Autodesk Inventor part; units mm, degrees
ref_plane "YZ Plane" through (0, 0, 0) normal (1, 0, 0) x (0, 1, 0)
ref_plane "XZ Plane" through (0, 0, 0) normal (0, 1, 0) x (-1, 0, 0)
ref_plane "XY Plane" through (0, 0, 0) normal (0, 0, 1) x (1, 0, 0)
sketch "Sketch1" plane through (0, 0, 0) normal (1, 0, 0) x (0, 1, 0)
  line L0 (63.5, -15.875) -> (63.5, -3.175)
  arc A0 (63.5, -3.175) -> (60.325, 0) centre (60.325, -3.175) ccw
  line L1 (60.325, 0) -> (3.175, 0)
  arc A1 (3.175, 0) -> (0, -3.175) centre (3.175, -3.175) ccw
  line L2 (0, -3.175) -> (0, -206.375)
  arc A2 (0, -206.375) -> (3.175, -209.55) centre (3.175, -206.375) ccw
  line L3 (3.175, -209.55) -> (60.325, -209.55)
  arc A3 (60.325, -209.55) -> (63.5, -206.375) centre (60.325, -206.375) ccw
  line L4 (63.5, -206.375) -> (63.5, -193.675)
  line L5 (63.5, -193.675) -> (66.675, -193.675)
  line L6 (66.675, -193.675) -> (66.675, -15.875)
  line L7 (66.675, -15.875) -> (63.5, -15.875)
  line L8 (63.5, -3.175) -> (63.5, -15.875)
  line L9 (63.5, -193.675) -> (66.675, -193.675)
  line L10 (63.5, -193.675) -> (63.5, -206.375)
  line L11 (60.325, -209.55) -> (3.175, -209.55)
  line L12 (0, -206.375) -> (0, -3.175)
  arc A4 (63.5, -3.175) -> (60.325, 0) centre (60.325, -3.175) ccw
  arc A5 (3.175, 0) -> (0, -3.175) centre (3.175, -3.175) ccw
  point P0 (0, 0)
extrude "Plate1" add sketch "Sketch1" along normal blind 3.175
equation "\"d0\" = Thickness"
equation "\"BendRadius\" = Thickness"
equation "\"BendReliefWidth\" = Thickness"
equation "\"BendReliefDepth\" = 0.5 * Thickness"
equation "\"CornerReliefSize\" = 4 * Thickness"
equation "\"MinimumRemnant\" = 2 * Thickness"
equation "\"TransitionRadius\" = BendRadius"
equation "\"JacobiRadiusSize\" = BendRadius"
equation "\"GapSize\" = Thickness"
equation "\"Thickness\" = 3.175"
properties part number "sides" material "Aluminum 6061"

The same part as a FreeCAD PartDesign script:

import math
import FreeCAD as App
import Part
import Sketcher
Q = App.Units.Quantity

doc = App.newDocument("Part")
params = doc.addObject("Spreadsheet::Sheet", "Params")
for row, (alias, value) in enumerate([
    ("sketch1_height", "8 in"),
    ("sketch1_height2", "7 in"),
    ("sketch1_radius", "0.125 in"),
    ("sketch1_width", "2.25 in"),
    ("pad1_length", "0.125 in"),
], start=1):
    params.set(f"A{row}", alias)
    params.set(f"B{row}", "=" + value)
    params.setAlias(f"B{row}", alias)

body = doc.addObject("PartDesign::Body", "Body")

# Sketch on YZ plane
sketch1 = body.newObject("Sketcher::SketchObject", "Sketch")
sketch1.AttachmentSupport = (doc.getObject("YZ_Plane"), [""])
sketch1.MapMode = "FlatFace"
sketch1.addGeometry(Part.LineSegment(App.Vector(66.7, -15.9, 0), App.Vector(63.5, -15.9, 0)), False)
sketch1.addGeometry(Part.LineSegment(App.Vector(63.5, -15.9, 0), App.Vector(63.5, -3.2, 0)), False)
sketch1.addGeometry(Part.ArcOfCircle(Part.Circle(App.Vector(60.3, -3.2, 0), App.Vector(0, 0, 1), 3.2), math.radians(0), math.radians(90)), False)
sketch1.addGeometry(Part.LineSegment(App.Vector(60.3, 0, 0), App.Vector(3.2, 0, 0)), False)
sketch1.addGeometry(Part.ArcOfCircle(Part.Circle(App.Vector(3.2, -3.2, 0), App.Vector(0, 0, 1), 3.2), math.radians(90), math.radians(180)), False)
sketch1.addGeometry(Part.LineSegment(App.Vector(0, -3.2, 0), App.Vector(0, -206.4, 0)), False)
sketch1.addGeometry(Part.ArcOfCircle(Part.Circle(App.Vector(3.2, -206.4, 0), App.Vector(0, 0, 1), 3.2), math.radians(180), math.radians(270)), False)
sketch1.addGeometry(Part.LineSegment(App.Vector(3.2, -209.6, 0), App.Vector(60.3, -209.6, 0)), False)
sketch1.addGeometry(Part.ArcOfCircle(Part.Circle(App.Vector(60.3, -206.4, 0), App.Vector(0, 0, 1), 3.2), math.radians(-90), math.radians(0)), False)
sketch1.addGeometry(Part.LineSegment(App.Vector(63.5, -206.4, 0), App.Vector(63.5, -193.7, 0)), False)
sketch1.addGeometry(Part.LineSegment(App.Vector(63.5, -193.7, 0), App.Vector(66.7, -193.7, 0)), False)
sketch1.addGeometry(Part.LineSegment(App.Vector(66.7, -193.7, 0), App.Vector(66.7, -15.9, 0)), False)
sketch1.addConstraint(Sketcher.Constraint("Coincident", 0, 2, 1, 1))
sketch1.addConstraint(Sketcher.Constraint("Tangent", 1, 2, 2, 1))
sketch1.addConstraint(Sketcher.Constraint("Tangent", 2, 2, 3, 1))
sketch1.addConstraint(Sketcher.Constraint("Tangent", 3, 2, 4, 1))
sketch1.addConstraint(Sketcher.Constraint("Tangent", 4, 2, 5, 1))
sketch1.addConstraint(Sketcher.Constraint("Tangent", 5, 2, 6, 1))
sketch1.addConstraint(Sketcher.Constraint("Tangent", 6, 2, 7, 1))
sketch1.addConstraint(Sketcher.Constraint("Tangent", 7, 2, 8, 1))
sketch1.addConstraint(Sketcher.Constraint("Tangent", 8, 2, 9, 1))
sketch1.addConstraint(Sketcher.Constraint("Coincident", 9, 2, 10, 1))
sketch1.addConstraint(Sketcher.Constraint("Coincident", 10, 2, 11, 1))
sketch1.addConstraint(Sketcher.Constraint("Coincident", 11, 2, 0, 1))
sketch1.addConstraint(Sketcher.Constraint("Horizontal", 0))
sketch1.addConstraint(Sketcher.Constraint("Vertical", 1))
sketch1.addConstraint(Sketcher.Constraint("Horizontal", 3))
sketch1.addConstraint(Sketcher.Constraint("Vertical", 5))
sketch1.addConstraint(Sketcher.Constraint("Horizontal", 7))
sketch1.addConstraint(Sketcher.Constraint("Vertical", 9))
sketch1.addConstraint(Sketcher.Constraint("Horizontal", 10))
sketch1.addConstraint(Sketcher.Constraint("Vertical", 11))
sketch1.addConstraint(Sketcher.Constraint("Equal", 2, 4))
sketch1.addConstraint(Sketcher.Constraint("Equal", 4, 6))
sketch1.addConstraint(Sketcher.Constraint("Equal", 6, 8))
sketch1.addConstraint(Sketcher.Constraint("PointOnObject", 2, 2, -1))
sketch1.addConstraint(Sketcher.Constraint("PointOnObject", 4, 2, -2))
sketch1.addConstraint(Sketcher.Constraint("Vertical", 2, 3, 8, 3))
sketch1.addConstraint(Sketcher.Constraint("Equal", 1, 9))
sketch1.addConstraint(Sketcher.Constraint("DistanceY", 5, 2, 5, 1, Q("8 in")))
sketch1.addConstraint(Sketcher.Constraint("DistanceY", 11, 1, 11, 2, Q("7 in")))
sketch1.addConstraint(Sketcher.Constraint("Radius", 2, Q("0.125 in")))
sketch1.addConstraint(Sketcher.Constraint("DistanceX", 3, 2, 3, 1, Q("2.25 in")))
sketch1.addConstraint(Sketcher.Constraint("DistanceX", 6, 3, 10, 2, Q("2.5 in")))
sketch1.setExpression("Constraints[27]", "Params.sketch1_height")
sketch1.setExpression("Constraints[28]", "Params.sketch1_height2")
sketch1.setExpression("Constraints[29]", "Params.sketch1_radius")
sketch1.setExpression("Constraints[30]", "Params.sketch1_width")
pad1 = body.newObject("PartDesign::Pad", "Pad")
pad1.Profile = sketch1
pad1.setExpression("Length", "Params.pad1_length")

doc.recompute()
